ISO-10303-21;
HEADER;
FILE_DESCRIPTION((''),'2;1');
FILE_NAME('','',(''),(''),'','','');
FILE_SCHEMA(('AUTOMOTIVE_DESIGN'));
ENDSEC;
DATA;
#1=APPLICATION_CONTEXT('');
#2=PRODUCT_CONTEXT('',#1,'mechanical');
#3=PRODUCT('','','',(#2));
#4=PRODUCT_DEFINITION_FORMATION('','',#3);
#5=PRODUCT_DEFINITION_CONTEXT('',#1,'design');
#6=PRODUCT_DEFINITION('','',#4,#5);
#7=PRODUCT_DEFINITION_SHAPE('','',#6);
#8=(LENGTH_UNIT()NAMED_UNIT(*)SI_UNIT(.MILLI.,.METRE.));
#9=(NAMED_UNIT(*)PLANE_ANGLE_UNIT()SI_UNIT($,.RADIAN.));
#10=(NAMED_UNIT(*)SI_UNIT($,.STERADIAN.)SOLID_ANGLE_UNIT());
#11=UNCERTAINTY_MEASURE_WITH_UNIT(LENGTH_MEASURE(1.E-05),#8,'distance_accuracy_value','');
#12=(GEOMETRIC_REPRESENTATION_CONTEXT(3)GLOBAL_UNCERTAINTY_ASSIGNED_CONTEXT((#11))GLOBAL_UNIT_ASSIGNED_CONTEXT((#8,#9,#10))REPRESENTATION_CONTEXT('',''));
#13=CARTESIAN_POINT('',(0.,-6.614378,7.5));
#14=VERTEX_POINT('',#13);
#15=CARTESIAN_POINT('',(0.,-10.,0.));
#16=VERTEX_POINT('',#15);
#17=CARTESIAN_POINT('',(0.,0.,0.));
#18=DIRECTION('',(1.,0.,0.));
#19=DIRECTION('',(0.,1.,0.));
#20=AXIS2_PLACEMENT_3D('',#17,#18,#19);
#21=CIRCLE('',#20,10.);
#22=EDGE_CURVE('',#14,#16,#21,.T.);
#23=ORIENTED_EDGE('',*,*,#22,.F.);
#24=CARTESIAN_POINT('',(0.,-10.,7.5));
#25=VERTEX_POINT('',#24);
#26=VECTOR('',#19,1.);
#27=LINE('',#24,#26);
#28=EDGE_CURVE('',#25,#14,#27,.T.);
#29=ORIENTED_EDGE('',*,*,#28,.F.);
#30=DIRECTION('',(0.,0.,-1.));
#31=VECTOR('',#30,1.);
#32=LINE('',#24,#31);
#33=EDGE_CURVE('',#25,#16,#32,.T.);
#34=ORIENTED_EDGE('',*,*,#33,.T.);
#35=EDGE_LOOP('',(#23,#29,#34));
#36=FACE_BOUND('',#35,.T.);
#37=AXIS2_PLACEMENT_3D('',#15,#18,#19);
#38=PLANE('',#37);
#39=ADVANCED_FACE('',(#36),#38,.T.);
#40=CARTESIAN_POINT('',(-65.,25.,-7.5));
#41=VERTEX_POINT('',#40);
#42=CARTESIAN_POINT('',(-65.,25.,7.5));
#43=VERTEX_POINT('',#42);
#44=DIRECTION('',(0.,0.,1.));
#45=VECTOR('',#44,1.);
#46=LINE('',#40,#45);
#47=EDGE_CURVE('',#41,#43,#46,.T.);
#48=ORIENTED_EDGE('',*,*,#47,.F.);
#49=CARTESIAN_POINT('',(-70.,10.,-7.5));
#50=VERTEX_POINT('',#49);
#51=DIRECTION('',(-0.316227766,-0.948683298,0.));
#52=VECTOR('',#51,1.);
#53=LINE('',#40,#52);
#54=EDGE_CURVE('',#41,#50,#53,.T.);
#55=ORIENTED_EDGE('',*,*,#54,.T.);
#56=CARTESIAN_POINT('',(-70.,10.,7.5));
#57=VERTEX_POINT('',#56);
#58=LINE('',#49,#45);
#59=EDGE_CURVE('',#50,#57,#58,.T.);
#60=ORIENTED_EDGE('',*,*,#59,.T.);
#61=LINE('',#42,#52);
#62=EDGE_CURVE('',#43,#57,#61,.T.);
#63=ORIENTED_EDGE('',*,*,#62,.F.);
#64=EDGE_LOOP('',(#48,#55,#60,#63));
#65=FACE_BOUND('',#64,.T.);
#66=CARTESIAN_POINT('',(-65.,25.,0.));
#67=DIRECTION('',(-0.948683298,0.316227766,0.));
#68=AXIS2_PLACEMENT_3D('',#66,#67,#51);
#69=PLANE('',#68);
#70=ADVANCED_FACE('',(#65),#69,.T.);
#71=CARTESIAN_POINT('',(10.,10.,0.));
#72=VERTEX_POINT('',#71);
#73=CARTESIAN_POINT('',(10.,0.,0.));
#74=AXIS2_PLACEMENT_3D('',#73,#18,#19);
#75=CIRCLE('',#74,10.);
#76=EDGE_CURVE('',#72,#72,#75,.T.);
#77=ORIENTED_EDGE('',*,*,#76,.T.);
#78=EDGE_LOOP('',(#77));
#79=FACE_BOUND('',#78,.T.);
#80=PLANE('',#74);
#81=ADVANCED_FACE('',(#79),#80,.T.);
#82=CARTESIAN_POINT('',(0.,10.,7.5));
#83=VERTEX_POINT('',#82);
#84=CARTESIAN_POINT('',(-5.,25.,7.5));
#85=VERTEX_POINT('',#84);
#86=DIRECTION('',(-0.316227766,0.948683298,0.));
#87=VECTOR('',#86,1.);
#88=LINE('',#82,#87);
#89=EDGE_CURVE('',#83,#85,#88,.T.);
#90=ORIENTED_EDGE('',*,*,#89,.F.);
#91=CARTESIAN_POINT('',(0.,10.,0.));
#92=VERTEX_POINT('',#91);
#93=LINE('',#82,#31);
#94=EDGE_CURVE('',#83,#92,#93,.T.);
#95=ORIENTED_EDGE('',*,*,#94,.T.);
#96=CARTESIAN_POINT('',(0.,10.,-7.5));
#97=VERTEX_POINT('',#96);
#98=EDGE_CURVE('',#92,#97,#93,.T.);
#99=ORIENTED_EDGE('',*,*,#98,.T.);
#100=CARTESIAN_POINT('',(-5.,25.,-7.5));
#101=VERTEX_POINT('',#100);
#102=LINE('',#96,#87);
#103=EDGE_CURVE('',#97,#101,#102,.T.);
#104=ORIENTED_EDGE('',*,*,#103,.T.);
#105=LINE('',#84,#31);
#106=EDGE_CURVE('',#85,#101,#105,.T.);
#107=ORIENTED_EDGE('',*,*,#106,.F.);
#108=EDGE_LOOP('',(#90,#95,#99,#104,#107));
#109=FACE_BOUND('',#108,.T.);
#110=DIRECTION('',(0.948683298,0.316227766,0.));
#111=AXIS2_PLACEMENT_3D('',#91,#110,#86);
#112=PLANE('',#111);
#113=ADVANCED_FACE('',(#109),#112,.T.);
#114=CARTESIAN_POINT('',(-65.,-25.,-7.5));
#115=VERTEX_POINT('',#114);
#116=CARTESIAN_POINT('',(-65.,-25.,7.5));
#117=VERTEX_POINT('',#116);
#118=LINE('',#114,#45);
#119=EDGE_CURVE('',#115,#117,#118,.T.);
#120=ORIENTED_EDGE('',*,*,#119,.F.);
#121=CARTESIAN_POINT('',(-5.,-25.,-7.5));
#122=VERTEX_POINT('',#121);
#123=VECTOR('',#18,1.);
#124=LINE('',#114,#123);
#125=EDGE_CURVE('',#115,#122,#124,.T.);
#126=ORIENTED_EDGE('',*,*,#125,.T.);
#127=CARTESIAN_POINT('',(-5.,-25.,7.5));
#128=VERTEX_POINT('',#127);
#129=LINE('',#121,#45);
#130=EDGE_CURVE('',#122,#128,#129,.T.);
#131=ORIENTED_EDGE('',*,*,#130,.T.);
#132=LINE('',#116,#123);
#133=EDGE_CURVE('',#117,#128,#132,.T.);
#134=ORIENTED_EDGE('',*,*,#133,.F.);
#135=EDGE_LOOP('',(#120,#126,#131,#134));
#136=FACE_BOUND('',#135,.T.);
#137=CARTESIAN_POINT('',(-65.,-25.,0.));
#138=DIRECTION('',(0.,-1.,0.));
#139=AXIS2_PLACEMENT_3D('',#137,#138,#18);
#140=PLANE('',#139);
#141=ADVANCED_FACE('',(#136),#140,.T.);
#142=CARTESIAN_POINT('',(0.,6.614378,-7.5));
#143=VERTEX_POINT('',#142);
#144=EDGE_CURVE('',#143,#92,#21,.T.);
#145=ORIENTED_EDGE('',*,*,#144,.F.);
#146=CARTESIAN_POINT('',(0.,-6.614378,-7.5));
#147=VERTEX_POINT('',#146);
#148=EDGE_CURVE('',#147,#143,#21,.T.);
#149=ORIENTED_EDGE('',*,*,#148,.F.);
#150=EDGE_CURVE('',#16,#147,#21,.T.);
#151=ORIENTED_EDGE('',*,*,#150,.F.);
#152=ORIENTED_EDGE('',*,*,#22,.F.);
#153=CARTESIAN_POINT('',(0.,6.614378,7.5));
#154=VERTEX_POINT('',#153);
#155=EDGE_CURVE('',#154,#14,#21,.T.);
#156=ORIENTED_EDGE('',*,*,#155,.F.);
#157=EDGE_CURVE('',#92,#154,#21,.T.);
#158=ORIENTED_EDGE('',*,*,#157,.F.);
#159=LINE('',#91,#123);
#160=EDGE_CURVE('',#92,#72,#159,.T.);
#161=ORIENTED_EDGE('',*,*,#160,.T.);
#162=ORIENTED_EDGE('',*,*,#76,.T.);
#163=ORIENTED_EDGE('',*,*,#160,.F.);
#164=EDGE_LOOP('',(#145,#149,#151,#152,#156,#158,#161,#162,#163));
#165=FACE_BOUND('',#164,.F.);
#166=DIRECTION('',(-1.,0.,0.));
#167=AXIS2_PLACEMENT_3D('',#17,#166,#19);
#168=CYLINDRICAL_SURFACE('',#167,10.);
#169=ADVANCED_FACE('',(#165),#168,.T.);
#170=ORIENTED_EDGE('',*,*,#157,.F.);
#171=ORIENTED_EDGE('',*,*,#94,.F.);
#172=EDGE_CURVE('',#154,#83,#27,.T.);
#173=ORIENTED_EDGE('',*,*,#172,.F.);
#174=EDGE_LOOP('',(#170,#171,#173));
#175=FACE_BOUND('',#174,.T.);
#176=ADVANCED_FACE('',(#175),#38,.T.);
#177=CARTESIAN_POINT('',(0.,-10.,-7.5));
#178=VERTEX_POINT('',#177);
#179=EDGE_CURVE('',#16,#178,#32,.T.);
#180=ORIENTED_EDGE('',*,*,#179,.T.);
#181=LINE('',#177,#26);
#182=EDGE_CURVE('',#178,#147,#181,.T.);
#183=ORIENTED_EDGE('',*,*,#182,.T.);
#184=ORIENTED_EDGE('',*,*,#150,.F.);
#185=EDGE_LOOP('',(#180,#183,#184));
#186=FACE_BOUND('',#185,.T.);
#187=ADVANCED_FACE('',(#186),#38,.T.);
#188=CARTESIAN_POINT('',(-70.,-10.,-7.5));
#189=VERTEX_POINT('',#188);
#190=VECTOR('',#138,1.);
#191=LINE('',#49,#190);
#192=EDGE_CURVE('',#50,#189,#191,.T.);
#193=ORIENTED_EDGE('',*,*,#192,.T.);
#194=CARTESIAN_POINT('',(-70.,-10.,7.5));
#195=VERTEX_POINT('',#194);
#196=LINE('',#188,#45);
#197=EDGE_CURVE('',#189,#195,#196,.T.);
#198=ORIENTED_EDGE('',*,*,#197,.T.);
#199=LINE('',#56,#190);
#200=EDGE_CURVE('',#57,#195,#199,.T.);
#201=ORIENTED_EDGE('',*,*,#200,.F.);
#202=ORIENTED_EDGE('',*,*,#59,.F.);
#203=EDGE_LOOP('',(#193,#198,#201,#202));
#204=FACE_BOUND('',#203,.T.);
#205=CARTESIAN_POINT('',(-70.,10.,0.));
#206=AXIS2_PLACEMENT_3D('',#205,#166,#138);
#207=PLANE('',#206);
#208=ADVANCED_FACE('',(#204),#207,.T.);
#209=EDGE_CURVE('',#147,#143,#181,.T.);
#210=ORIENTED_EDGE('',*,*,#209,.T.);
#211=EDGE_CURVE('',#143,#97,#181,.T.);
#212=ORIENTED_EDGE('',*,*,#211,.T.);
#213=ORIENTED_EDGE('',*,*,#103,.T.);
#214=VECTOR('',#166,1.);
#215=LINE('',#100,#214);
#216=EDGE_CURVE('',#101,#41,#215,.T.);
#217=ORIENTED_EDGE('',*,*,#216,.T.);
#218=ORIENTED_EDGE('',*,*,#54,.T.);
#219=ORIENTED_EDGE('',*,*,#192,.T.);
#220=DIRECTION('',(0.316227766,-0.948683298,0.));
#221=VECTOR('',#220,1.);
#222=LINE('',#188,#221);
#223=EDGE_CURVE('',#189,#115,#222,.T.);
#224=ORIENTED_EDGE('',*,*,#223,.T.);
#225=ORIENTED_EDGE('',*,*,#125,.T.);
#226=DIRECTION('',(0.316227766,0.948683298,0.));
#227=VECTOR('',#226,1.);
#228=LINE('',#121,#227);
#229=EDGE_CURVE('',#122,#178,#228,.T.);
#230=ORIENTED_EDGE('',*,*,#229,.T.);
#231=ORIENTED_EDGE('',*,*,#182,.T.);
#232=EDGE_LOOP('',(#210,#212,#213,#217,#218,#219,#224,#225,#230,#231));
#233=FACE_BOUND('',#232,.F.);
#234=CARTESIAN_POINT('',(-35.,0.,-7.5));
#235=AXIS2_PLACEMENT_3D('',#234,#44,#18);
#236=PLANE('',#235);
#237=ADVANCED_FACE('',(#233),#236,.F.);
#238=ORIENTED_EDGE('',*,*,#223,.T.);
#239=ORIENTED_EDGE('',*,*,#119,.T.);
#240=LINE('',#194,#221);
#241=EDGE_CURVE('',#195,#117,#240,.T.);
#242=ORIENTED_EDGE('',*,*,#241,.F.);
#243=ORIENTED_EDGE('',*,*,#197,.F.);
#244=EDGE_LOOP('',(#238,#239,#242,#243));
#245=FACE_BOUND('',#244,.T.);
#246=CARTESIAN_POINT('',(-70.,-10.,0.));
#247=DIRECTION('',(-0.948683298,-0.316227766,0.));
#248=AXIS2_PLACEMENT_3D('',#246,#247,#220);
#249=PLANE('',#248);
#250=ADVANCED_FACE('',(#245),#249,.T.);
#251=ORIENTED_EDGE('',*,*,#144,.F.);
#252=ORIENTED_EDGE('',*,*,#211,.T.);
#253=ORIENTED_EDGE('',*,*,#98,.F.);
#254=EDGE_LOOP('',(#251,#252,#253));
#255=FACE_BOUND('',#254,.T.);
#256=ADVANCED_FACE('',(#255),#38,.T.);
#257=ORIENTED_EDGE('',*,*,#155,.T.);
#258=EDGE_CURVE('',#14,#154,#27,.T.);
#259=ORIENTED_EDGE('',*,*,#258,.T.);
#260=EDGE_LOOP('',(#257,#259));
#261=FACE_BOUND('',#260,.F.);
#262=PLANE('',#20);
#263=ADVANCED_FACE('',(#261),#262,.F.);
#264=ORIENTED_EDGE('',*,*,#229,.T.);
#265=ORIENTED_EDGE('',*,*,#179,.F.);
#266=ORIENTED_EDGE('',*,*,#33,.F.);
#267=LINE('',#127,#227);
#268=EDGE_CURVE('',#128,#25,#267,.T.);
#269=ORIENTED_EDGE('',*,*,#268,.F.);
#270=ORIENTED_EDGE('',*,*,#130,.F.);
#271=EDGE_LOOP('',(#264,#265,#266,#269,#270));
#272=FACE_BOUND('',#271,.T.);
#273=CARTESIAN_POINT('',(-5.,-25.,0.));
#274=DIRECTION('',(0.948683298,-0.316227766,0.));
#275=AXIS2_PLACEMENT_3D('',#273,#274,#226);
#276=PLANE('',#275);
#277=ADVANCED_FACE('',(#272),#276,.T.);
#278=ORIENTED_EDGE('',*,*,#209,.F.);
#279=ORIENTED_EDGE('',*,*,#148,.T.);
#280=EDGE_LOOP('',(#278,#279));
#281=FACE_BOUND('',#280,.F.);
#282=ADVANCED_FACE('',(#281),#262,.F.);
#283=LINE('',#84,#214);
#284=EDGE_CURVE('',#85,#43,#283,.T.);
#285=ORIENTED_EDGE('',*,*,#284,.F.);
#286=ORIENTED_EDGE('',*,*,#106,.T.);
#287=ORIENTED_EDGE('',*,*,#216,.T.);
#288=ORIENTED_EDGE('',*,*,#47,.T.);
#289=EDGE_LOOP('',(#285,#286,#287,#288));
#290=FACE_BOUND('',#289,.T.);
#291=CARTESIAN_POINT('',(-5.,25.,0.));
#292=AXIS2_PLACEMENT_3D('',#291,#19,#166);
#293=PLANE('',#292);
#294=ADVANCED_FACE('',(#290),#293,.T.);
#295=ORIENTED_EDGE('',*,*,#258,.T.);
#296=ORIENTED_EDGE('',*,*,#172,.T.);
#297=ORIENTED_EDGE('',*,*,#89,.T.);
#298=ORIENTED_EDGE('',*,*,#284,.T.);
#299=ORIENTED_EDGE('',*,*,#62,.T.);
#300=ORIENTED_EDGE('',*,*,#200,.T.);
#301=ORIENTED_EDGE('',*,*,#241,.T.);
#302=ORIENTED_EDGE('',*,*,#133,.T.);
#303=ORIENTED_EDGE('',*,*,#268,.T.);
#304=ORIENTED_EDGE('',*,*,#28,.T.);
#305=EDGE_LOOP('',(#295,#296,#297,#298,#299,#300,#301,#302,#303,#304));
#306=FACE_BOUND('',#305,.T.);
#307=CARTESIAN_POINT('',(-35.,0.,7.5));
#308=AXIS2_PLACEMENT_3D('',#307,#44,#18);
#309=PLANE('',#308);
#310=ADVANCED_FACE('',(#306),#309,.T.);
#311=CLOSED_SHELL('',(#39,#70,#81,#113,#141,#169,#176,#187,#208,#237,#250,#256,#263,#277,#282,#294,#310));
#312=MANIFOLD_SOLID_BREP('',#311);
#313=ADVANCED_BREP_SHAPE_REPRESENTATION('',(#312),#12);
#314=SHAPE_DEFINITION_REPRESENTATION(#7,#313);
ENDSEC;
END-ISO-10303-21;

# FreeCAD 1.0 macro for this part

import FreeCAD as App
import Part
import Sketcher
from FreeCAD import Vector
Q = App.Units.Quantity


def add_polygon(sketch, points):
    """Adds a closed chain of lines whose ends are joined by coincident constraints."""
    first, n = sketch.GeometryCount, len(points)
    for a, b in zip(points, points[1:] + points[:1]):
        sketch.addGeometry(Part.LineSegment(App.Vector(*a, 0), App.Vector(*b, 0)), False)
    for i in range(n):
        sketch.addConstraint(Sketcher.Constraint("Coincident", first + i, 2, first + (i + 1) % n, 1))

doc = App.newDocument("Part")
params = doc.addObject("Spreadsheet::Sheet", "Params")
for row, (alias, value) in enumerate([
    ("sketch1_diameter", "20 mm"),
    ("pad1_length", "10 mm"),
    ("sketch2_width", "60 mm"),
    ("sketch2_height", "20 mm"),
    ("pad2_length", "15 mm"),
], start=1):
    params.set(f"A{row}", alias)
    params.set(f"B{row}", "=" + value)
    params.setAlias(f"B{row}", alias)

body = doc.addObject("PartDesign::Body", "Body")

sketch1 = doc.addObject("Sketcher::SketchObject", "Sketch")
body.addObject(sketch1)
sketch1.AttachmentSupport = (doc.YZ_Plane, [""])
sketch1.MapMode = "FlatFace"
sketch1.addGeometry(Part.Circle(Vector(0, 0, 0), Vector(0, 0, 1), 10), False)
sketch1.addConstraint(Sketcher.Constraint("Coincident", 0, 3, -1, 1))
sketch1.addConstraint(Sketcher.Constraint("Diameter", 0, Q("20 mm")))
sketch1.setExpression("Constraints[1]", "Params.sketch1_diameter")
pad1 = doc.addObject("PartDesign::Pad", "Pad")
body.addObject(pad1)
pad1.Profile = sketch1
pad1.setExpression("Length", "Params.pad1_length")

sketch2 = doc.addObject("Sketcher::SketchObject", "Sketch001")
body.addObject(sketch2)
sketch2.AttachmentSupport = (doc.XY_Plane, [""])
sketch2.MapMode = "FlatFace"
add_polygon(sketch2, [(-5, 25), (-65, 25), (-70, 10), (-70, -10), (-65, -25), (-5, -25), (0, -10), (0, 10)])
sketch2.addConstraint(Sketcher.Constraint("Horizontal", 0))
sketch2.addConstraint(Sketcher.Constraint("Vertical", 2))
sketch2.addConstraint(Sketcher.Constraint("Horizontal", 4))
sketch2.addConstraint(Sketcher.Constraint("Vertical", 6))
sketch2.addConstraint(Sketcher.Constraint("Symmetric", 5, 2, 6, 2, -1, 1))
sketch2.addConstraint(Sketcher.Constraint("Symmetric", 0, 2, 3, 2, -1))
sketch2.addConstraint(Sketcher.Constraint("Parallel", 1, 5))
sketch2.addConstraint(Sketcher.Constraint("Parallel", 3, 7))
sketch2.addConstraint(Sketcher.Constraint("Horizontal", 2, 2, 5, 2))
sketch2.addConstraint(Sketcher.Constraint("Horizontal", 1, 2, 6, 2))
sketch2.addConstraint(Sketcher.Constraint("DistanceX", 0, 2, 0, 1, Q("60 mm")))
sketch2.addConstraint(Sketcher.Constraint("DistanceY", 2, 2, 2, 1, Q("20 mm")))
sketch2.addConstraint(Sketcher.Constraint("DistanceX", 0, 2, -1, 1, Q("65 mm")))
sketch2.addConstraint(Sketcher.Constraint("DistanceY", -1, 1, 0, 2, Q("25 mm")))
sketch2.setExpression("Constraints[18]", "Params.sketch2_width")
sketch2.setExpression("Constraints[19]", "Params.sketch2_height")
pad2 = doc.addObject("PartDesign::Pad", "Pad001")
body.addObject(pad2)
pad2.Profile = sketch2
pad2.setExpression("Length", "Params.pad2_length")
pad2.Midplane = True

doc.recompute()
